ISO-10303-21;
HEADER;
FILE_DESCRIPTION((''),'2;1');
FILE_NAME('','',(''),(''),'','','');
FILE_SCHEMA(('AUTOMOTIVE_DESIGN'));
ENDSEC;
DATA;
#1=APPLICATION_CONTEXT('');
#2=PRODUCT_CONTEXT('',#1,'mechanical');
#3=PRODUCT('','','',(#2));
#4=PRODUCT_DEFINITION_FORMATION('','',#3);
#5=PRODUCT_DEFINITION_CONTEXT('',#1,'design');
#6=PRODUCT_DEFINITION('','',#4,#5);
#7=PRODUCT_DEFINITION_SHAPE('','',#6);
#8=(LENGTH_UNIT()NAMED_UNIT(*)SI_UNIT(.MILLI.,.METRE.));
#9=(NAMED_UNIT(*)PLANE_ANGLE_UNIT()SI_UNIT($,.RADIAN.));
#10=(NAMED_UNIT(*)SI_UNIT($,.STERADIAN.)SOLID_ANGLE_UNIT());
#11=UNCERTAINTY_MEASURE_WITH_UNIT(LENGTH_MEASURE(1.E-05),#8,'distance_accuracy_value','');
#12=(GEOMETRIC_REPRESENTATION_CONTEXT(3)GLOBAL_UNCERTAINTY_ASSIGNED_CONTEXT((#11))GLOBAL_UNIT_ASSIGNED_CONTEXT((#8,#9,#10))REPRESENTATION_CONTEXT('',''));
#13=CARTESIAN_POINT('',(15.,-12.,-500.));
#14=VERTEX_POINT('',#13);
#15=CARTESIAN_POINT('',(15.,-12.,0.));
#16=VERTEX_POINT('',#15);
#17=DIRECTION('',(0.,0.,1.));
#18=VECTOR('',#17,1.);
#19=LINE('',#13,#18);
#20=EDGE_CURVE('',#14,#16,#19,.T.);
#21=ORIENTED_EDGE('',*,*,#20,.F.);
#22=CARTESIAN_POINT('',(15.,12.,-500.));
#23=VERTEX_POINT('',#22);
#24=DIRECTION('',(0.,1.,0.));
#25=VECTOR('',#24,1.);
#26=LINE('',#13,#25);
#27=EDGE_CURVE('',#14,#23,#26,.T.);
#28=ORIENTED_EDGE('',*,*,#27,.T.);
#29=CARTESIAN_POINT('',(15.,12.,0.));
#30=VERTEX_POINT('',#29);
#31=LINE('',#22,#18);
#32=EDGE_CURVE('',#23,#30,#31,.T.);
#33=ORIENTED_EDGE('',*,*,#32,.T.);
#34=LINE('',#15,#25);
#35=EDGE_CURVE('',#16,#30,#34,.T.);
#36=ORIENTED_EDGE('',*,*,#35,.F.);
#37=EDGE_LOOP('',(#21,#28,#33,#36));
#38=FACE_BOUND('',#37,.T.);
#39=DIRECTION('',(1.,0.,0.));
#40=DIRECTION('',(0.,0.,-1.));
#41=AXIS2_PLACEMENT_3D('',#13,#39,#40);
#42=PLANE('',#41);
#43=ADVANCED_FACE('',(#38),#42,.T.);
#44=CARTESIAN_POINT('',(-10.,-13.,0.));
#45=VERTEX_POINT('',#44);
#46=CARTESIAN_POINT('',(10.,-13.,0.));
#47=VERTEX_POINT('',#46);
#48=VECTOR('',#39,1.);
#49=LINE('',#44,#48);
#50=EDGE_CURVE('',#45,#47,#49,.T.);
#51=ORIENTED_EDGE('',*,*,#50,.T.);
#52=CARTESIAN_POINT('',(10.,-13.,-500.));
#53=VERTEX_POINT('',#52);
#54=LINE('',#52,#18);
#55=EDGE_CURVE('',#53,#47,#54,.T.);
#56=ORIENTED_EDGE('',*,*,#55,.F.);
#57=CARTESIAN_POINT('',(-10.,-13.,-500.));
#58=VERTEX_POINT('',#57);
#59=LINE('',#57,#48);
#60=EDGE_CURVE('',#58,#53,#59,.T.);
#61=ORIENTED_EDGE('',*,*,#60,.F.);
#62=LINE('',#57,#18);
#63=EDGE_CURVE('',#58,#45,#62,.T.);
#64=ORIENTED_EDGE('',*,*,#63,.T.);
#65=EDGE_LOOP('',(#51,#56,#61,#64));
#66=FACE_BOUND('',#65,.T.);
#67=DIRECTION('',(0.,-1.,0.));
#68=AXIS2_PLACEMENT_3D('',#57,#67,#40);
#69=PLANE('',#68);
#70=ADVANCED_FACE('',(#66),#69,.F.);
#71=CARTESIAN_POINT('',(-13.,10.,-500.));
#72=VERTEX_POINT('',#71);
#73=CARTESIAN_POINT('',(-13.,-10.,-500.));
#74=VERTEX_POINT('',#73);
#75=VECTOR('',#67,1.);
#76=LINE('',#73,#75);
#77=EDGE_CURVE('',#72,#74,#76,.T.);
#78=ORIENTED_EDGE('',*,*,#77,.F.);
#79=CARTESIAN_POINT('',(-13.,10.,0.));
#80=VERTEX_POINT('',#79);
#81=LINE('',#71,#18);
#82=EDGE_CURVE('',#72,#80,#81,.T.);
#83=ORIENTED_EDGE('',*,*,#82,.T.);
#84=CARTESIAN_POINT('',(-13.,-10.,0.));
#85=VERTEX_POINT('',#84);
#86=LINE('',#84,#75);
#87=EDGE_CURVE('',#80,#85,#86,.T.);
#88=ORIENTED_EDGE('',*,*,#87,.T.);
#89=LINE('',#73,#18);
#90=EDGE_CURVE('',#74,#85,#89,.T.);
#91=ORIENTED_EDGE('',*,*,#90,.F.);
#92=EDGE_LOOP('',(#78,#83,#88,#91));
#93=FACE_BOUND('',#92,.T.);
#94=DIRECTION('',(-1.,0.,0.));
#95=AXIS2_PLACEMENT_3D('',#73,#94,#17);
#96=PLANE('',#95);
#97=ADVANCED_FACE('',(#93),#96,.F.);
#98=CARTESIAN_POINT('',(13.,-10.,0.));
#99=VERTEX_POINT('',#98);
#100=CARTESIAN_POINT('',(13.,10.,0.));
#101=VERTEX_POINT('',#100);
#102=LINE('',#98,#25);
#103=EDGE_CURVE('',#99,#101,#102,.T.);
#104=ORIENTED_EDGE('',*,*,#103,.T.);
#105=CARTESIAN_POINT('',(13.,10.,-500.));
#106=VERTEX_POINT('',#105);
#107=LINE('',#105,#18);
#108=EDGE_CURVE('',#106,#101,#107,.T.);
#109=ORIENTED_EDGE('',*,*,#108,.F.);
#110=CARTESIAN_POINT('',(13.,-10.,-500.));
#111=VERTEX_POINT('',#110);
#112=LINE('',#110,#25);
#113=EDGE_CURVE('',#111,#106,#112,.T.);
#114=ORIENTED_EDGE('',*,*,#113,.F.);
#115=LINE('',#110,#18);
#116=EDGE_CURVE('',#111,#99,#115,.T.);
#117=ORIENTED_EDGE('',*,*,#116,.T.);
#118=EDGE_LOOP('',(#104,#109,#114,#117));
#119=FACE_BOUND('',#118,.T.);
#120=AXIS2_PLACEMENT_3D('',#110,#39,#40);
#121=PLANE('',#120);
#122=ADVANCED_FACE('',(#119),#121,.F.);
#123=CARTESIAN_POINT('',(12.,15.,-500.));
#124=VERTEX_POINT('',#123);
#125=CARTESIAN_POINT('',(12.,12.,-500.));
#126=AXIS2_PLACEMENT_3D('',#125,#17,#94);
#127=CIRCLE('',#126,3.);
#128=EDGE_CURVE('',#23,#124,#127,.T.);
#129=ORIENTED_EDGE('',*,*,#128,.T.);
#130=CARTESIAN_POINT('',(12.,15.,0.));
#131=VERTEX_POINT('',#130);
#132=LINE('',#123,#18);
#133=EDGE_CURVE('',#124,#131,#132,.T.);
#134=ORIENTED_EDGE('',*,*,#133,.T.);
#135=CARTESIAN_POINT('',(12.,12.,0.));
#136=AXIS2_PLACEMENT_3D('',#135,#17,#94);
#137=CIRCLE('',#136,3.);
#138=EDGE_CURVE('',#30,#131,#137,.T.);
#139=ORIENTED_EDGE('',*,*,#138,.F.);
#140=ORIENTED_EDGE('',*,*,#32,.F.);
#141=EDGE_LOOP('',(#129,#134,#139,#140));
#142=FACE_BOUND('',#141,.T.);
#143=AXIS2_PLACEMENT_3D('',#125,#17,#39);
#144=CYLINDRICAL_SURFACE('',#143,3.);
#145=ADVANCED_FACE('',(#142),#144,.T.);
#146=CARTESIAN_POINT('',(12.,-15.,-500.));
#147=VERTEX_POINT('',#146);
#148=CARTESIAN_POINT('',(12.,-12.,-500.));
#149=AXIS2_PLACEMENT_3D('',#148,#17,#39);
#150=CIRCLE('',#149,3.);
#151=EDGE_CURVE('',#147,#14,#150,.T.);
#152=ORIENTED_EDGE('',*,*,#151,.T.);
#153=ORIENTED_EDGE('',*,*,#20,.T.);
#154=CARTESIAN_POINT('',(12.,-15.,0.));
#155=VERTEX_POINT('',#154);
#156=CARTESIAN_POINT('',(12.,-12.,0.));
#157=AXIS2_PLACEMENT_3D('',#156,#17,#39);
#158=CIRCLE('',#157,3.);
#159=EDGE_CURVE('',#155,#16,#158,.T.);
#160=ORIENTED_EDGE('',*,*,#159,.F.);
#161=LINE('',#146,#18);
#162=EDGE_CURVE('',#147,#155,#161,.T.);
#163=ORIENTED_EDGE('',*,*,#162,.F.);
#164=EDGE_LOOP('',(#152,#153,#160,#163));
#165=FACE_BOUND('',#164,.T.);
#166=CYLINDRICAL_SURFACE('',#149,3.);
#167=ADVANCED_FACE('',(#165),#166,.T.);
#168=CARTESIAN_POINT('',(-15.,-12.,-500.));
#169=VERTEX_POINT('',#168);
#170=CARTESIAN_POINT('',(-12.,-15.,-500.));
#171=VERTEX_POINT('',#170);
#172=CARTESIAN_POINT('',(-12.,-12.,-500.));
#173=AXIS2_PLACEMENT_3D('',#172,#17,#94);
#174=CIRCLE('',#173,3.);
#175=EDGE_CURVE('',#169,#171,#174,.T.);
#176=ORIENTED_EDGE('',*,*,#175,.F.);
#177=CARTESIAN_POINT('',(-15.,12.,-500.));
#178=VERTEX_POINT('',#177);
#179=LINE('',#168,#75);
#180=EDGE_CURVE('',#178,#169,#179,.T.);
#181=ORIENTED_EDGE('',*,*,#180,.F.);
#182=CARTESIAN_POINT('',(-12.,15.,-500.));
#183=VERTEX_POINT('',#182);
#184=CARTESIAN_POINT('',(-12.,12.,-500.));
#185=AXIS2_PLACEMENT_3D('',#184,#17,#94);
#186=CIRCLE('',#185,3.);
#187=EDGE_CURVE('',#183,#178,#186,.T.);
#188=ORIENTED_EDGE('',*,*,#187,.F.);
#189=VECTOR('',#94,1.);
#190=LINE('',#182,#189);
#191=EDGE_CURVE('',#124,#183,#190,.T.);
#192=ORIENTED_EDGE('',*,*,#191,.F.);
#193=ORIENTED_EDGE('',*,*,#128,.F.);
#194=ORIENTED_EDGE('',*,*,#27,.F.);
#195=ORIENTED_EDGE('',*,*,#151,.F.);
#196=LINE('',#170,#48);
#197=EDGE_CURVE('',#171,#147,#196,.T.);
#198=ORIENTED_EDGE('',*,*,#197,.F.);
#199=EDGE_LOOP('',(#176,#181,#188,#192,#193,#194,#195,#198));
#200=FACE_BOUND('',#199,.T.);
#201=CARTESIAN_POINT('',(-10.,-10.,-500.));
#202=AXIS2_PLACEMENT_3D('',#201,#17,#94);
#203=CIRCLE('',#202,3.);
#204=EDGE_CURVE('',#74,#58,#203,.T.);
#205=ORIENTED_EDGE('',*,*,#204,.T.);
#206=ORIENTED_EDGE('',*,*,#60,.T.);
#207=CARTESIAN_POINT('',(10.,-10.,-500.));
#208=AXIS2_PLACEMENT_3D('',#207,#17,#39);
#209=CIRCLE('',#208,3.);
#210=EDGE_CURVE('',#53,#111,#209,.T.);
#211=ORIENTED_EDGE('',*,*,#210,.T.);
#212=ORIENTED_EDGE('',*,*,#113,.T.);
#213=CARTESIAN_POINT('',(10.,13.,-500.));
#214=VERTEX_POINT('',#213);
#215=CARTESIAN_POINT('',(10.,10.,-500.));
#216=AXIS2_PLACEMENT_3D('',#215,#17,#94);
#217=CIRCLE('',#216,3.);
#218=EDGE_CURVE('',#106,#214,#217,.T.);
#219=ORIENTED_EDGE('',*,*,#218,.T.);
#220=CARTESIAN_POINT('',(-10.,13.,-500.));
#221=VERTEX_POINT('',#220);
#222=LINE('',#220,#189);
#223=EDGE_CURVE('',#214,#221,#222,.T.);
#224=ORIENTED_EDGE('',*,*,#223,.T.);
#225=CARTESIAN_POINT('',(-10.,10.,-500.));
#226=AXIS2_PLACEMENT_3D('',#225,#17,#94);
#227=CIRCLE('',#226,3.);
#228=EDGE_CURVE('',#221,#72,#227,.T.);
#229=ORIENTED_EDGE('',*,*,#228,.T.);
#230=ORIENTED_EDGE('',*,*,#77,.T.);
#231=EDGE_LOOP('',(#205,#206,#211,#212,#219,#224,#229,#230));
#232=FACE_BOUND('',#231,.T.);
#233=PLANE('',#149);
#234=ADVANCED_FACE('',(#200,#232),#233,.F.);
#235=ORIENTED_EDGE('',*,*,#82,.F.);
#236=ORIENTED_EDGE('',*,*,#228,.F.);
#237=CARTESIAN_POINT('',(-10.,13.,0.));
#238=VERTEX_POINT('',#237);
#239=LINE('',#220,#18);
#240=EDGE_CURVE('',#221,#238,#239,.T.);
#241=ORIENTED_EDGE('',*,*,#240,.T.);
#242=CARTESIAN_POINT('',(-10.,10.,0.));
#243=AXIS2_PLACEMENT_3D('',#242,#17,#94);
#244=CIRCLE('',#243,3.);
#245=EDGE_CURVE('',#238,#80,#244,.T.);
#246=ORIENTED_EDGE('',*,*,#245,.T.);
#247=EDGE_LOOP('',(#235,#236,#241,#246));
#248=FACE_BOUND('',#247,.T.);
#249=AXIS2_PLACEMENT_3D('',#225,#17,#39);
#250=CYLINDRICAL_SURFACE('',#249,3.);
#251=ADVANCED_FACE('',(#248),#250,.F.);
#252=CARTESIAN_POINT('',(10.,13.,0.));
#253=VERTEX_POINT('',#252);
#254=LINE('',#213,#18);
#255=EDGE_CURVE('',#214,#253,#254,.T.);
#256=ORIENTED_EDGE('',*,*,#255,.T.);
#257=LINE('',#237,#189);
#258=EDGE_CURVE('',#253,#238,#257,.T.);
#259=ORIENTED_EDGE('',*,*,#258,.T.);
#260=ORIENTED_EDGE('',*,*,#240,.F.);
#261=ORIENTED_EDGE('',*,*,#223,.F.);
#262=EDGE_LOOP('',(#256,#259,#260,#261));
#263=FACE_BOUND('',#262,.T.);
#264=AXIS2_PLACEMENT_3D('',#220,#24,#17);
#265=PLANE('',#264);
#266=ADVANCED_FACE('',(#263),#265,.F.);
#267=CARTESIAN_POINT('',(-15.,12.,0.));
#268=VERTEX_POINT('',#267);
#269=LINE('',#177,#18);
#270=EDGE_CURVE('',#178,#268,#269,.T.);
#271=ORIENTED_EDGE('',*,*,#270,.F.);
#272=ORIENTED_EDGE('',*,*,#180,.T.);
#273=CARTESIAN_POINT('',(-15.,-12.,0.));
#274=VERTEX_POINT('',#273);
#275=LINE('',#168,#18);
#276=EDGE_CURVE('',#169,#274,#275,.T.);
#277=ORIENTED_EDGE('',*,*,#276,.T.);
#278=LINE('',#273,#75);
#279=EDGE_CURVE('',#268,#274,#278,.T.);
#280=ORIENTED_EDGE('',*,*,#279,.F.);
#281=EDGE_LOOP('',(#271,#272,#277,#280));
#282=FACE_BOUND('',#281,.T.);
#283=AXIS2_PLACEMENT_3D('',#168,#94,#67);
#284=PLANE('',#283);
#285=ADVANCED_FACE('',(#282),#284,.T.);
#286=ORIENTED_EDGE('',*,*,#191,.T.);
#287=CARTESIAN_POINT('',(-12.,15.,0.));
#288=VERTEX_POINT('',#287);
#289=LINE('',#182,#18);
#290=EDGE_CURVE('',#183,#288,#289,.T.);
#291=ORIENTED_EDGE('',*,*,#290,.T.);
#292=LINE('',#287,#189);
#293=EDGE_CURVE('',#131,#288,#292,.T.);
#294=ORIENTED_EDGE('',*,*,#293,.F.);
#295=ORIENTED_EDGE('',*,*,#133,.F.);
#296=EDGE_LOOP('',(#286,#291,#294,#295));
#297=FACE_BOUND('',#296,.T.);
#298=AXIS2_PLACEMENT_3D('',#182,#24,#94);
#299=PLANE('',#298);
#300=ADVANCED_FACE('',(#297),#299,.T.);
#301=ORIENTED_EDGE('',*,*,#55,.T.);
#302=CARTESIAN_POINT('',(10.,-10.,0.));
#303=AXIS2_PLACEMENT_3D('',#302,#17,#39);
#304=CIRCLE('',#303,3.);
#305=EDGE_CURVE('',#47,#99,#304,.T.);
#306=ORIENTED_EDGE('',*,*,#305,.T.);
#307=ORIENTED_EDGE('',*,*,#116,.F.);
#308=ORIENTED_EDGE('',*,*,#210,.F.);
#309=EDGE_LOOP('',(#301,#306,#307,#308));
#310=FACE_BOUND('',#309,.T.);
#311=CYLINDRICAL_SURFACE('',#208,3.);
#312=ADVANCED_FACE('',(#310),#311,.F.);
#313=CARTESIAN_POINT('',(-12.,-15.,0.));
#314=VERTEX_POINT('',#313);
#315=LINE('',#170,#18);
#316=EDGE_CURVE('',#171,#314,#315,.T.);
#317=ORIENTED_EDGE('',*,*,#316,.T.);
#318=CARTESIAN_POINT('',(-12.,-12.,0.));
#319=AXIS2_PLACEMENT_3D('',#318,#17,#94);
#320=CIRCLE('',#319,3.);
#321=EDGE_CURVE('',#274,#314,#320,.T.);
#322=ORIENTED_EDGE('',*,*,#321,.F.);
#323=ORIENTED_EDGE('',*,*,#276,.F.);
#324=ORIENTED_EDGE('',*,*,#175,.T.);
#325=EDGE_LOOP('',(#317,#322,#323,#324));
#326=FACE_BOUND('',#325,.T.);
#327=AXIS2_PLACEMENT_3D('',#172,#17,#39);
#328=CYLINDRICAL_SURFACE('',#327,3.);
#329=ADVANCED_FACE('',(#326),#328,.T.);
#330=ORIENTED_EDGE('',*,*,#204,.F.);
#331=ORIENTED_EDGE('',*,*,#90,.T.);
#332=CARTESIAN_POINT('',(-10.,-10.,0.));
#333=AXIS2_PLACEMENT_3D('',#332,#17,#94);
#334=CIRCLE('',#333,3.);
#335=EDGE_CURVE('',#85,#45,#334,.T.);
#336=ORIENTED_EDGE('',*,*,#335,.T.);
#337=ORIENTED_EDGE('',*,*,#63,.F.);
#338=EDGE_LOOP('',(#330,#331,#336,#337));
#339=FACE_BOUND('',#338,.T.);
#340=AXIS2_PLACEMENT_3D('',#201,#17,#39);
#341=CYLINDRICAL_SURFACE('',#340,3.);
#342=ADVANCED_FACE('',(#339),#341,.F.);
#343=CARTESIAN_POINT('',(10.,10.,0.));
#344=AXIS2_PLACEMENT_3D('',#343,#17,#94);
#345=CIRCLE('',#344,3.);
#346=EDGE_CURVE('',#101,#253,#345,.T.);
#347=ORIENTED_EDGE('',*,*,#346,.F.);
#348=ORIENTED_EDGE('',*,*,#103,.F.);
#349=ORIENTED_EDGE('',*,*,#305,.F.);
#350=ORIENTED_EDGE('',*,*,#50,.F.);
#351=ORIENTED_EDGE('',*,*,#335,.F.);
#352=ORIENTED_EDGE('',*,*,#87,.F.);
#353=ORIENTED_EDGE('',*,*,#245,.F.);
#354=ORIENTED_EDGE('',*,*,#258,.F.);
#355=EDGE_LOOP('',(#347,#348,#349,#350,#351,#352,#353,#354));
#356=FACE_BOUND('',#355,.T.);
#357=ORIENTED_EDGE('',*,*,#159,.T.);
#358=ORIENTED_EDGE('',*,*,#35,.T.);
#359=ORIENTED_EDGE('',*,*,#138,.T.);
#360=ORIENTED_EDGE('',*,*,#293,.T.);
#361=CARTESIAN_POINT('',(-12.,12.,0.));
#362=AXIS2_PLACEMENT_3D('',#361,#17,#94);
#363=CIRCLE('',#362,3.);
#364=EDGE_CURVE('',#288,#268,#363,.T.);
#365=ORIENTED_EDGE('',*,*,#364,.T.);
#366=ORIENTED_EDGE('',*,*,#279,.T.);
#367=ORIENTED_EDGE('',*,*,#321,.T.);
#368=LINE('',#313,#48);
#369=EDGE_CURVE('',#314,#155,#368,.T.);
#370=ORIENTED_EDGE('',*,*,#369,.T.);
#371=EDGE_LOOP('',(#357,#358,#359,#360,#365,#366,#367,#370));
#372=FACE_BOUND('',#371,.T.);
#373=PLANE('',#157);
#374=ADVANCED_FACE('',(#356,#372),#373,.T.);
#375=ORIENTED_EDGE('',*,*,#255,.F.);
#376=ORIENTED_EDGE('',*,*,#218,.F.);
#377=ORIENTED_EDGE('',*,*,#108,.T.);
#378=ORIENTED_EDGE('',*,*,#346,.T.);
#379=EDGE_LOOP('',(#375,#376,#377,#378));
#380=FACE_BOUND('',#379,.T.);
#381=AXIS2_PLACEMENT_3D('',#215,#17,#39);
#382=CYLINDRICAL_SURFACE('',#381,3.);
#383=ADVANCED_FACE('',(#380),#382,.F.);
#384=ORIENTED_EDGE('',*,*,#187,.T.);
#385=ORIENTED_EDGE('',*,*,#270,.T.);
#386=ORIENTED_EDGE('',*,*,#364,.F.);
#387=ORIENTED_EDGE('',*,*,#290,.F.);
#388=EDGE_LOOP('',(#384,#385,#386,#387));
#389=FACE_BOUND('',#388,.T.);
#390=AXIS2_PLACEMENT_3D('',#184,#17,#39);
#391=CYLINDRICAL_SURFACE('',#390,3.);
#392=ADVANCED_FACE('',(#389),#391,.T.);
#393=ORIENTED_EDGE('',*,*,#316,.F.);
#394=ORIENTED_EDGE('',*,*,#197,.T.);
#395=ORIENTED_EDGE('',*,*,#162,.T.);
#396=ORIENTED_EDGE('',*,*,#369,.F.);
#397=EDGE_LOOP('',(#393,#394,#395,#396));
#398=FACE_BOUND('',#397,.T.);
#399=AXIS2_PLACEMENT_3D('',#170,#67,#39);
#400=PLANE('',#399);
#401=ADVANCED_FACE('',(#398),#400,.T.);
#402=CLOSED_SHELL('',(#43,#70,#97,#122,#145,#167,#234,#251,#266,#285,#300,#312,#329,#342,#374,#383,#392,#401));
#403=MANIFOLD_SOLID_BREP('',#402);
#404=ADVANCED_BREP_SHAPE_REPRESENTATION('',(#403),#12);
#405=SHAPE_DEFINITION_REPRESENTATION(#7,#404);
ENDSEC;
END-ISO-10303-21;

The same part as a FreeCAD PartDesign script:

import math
import FreeCAD as App
import Part
import Sketcher

V = App.Vector
Q = App.Units.Quantity

doc = App.newDocument("Part")
body = doc.addObject("PartDesign::Body", "Body")

# Sketch on XY plane
sketch1 = doc.addObject("Sketcher::SketchObject", "Sketch")
body.addObject(sketch1)
sketch1.AttachmentSupport = (doc.XY_Plane, [""])
sketch1.MapMode = "FlatFace"
sketch1.addGeometry([
    Part.LineSegment(V(-12, -15, 0), V(12, -15, 0)),  # 0
    Part.ArcOfCircle(Part.Circle(V(12, -12, 0), V(0, 0, 1), 3), math.radians(-90), math.radians(0)),  # 1
    Part.LineSegment(V(15, -12, 0), V(15, 12, 0)),  # 2
    Part.ArcOfCircle(Part.Circle(V(12, 12, 0), V(0, 0, 1), 3), math.radians(0), math.radians(90)),  # 3
    Part.LineSegment(V(12, 15, 0), V(-12, 15, 0)),  # 4
    Part.ArcOfCircle(Part.Circle(V(-12, 12, 0), V(0, 0, 1), 3), math.radians(90), math.radians(180)),  # 5
    Part.LineSegment(V(-15, 12, 0), V(-15, -12, 0)),  # 6
    Part.ArcOfCircle(Part.Circle(V(-12, -12, 0), V(0, 0, 1), 3), math.radians(180), math.radians(270)),  # 7
    Part.LineSegment(V(10, -13, 0), V(-10, -13, 0)),  # 8
    Part.ArcOfCircle(Part.Circle(V(-10, -10, 0), V(0, 0, 1), 3), math.radians(180), math.radians(270)),  # 9
    Part.LineSegment(V(-13, -10, 0), V(-13, 10, 0)),  # 10
    Part.ArcOfCircle(Part.Circle(V(-10, 10, 0), V(0, 0, 1), 3), math.radians(90), math.radians(180)),  # 11
    Part.LineSegment(V(-10, 13, 0), V(10, 13, 0)),  # 12
    Part.ArcOfCircle(Part.Circle(V(10, 10, 0), V(0, 0, 1), 3), math.radians(0), math.radians(90)),  # 13
    Part.LineSegment(V(13, 10, 0), V(13, -10, 0)),  # 14
    Part.ArcOfCircle(Part.Circle(V(10, -10, 0), V(0, 0, 1), 3), math.radians(-90), math.radians(0)),  # 15
], False)
sketch1.addConstraint([
    Sketcher.Constraint("Tangent", 0, 2, 1, 1),
    Sketcher.Constraint("Tangent", 1, 2, 2, 1),
    Sketcher.Constraint("Tangent", 2, 2, 3, 1),
    Sketcher.Constraint("Tangent", 3, 2, 4, 1),
    Sketcher.Constraint("Tangent", 4, 2, 5, 1),
    Sketcher.Constraint("Tangent", 5, 2, 6, 1),
    Sketcher.Constraint("Tangent", 6, 2, 7, 1),
    Sketcher.Constraint("Tangent", 7, 2, 0, 1),
    Sketcher.Constraint("Tangent", 8, 2, 9, 2),
    Sketcher.Constraint("Tangent", 9, 1, 10, 1),
    Sketcher.Constraint("Tangent", 10, 2, 11, 2),
    Sketcher.Constraint("Tangent", 11, 1, 12, 1),
    Sketcher.Constraint("Tangent", 12, 2, 13, 2),
    Sketcher.Constraint("Tangent", 13, 1, 14, 1),
    Sketcher.Constraint("Tangent", 14, 2, 15, 2),
    Sketcher.Constraint("Tangent", 15, 1, 8, 1),
    Sketcher.Constraint("Horizontal", 0),
    Sketcher.Constraint("Vertical", 2),
    Sketcher.Constraint("Horizontal", 4),
    Sketcher.Constraint("Vertical", 6),
    Sketcher.Constraint("Horizontal", 8),
    Sketcher.Constraint("Vertical", 10),
    Sketcher.Constraint("Horizontal", 12),
    Sketcher.Constraint("Vertical", 14),
    Sketcher.Constraint("Equal", 1, 3),
    Sketcher.Constraint("Equal", 3, 5),
    Sketcher.Constraint("Equal", 5, 7),
    Sketcher.Constraint("Equal", 7, 9),
    Sketcher.Constraint("Equal", 9, 11),
    Sketcher.Constraint("Equal", 11, 13),
    Sketcher.Constraint("Equal", 13, 15),
    Sketcher.Constraint("Symmetric", 1, 3, 5, 3, -1, 1),
    Sketcher.Constraint("Symmetric", 9, 3, 13, 3, -1, 1),
    Sketcher.Constraint("Equal", 4, 2),
    Sketcher.Constraint("Equal", 12, 10),
    Sketcher.Constraint("Radius", 1, Q("3 mm")),
    Sketcher.Constraint("DistanceX", 0, 1, 0, 2, Q("24 mm")),
    Sketcher.Constraint("DistanceX", 8, 2, 8, 1, Q("20 mm")),
])
pad1 = doc.addObject("PartDesign::Pad", "Pad")
body.addObject(pad1)
pad1.Profile = sketch1
pad1.Length = 500
pad1.Reversed = True

doc.recompute()
